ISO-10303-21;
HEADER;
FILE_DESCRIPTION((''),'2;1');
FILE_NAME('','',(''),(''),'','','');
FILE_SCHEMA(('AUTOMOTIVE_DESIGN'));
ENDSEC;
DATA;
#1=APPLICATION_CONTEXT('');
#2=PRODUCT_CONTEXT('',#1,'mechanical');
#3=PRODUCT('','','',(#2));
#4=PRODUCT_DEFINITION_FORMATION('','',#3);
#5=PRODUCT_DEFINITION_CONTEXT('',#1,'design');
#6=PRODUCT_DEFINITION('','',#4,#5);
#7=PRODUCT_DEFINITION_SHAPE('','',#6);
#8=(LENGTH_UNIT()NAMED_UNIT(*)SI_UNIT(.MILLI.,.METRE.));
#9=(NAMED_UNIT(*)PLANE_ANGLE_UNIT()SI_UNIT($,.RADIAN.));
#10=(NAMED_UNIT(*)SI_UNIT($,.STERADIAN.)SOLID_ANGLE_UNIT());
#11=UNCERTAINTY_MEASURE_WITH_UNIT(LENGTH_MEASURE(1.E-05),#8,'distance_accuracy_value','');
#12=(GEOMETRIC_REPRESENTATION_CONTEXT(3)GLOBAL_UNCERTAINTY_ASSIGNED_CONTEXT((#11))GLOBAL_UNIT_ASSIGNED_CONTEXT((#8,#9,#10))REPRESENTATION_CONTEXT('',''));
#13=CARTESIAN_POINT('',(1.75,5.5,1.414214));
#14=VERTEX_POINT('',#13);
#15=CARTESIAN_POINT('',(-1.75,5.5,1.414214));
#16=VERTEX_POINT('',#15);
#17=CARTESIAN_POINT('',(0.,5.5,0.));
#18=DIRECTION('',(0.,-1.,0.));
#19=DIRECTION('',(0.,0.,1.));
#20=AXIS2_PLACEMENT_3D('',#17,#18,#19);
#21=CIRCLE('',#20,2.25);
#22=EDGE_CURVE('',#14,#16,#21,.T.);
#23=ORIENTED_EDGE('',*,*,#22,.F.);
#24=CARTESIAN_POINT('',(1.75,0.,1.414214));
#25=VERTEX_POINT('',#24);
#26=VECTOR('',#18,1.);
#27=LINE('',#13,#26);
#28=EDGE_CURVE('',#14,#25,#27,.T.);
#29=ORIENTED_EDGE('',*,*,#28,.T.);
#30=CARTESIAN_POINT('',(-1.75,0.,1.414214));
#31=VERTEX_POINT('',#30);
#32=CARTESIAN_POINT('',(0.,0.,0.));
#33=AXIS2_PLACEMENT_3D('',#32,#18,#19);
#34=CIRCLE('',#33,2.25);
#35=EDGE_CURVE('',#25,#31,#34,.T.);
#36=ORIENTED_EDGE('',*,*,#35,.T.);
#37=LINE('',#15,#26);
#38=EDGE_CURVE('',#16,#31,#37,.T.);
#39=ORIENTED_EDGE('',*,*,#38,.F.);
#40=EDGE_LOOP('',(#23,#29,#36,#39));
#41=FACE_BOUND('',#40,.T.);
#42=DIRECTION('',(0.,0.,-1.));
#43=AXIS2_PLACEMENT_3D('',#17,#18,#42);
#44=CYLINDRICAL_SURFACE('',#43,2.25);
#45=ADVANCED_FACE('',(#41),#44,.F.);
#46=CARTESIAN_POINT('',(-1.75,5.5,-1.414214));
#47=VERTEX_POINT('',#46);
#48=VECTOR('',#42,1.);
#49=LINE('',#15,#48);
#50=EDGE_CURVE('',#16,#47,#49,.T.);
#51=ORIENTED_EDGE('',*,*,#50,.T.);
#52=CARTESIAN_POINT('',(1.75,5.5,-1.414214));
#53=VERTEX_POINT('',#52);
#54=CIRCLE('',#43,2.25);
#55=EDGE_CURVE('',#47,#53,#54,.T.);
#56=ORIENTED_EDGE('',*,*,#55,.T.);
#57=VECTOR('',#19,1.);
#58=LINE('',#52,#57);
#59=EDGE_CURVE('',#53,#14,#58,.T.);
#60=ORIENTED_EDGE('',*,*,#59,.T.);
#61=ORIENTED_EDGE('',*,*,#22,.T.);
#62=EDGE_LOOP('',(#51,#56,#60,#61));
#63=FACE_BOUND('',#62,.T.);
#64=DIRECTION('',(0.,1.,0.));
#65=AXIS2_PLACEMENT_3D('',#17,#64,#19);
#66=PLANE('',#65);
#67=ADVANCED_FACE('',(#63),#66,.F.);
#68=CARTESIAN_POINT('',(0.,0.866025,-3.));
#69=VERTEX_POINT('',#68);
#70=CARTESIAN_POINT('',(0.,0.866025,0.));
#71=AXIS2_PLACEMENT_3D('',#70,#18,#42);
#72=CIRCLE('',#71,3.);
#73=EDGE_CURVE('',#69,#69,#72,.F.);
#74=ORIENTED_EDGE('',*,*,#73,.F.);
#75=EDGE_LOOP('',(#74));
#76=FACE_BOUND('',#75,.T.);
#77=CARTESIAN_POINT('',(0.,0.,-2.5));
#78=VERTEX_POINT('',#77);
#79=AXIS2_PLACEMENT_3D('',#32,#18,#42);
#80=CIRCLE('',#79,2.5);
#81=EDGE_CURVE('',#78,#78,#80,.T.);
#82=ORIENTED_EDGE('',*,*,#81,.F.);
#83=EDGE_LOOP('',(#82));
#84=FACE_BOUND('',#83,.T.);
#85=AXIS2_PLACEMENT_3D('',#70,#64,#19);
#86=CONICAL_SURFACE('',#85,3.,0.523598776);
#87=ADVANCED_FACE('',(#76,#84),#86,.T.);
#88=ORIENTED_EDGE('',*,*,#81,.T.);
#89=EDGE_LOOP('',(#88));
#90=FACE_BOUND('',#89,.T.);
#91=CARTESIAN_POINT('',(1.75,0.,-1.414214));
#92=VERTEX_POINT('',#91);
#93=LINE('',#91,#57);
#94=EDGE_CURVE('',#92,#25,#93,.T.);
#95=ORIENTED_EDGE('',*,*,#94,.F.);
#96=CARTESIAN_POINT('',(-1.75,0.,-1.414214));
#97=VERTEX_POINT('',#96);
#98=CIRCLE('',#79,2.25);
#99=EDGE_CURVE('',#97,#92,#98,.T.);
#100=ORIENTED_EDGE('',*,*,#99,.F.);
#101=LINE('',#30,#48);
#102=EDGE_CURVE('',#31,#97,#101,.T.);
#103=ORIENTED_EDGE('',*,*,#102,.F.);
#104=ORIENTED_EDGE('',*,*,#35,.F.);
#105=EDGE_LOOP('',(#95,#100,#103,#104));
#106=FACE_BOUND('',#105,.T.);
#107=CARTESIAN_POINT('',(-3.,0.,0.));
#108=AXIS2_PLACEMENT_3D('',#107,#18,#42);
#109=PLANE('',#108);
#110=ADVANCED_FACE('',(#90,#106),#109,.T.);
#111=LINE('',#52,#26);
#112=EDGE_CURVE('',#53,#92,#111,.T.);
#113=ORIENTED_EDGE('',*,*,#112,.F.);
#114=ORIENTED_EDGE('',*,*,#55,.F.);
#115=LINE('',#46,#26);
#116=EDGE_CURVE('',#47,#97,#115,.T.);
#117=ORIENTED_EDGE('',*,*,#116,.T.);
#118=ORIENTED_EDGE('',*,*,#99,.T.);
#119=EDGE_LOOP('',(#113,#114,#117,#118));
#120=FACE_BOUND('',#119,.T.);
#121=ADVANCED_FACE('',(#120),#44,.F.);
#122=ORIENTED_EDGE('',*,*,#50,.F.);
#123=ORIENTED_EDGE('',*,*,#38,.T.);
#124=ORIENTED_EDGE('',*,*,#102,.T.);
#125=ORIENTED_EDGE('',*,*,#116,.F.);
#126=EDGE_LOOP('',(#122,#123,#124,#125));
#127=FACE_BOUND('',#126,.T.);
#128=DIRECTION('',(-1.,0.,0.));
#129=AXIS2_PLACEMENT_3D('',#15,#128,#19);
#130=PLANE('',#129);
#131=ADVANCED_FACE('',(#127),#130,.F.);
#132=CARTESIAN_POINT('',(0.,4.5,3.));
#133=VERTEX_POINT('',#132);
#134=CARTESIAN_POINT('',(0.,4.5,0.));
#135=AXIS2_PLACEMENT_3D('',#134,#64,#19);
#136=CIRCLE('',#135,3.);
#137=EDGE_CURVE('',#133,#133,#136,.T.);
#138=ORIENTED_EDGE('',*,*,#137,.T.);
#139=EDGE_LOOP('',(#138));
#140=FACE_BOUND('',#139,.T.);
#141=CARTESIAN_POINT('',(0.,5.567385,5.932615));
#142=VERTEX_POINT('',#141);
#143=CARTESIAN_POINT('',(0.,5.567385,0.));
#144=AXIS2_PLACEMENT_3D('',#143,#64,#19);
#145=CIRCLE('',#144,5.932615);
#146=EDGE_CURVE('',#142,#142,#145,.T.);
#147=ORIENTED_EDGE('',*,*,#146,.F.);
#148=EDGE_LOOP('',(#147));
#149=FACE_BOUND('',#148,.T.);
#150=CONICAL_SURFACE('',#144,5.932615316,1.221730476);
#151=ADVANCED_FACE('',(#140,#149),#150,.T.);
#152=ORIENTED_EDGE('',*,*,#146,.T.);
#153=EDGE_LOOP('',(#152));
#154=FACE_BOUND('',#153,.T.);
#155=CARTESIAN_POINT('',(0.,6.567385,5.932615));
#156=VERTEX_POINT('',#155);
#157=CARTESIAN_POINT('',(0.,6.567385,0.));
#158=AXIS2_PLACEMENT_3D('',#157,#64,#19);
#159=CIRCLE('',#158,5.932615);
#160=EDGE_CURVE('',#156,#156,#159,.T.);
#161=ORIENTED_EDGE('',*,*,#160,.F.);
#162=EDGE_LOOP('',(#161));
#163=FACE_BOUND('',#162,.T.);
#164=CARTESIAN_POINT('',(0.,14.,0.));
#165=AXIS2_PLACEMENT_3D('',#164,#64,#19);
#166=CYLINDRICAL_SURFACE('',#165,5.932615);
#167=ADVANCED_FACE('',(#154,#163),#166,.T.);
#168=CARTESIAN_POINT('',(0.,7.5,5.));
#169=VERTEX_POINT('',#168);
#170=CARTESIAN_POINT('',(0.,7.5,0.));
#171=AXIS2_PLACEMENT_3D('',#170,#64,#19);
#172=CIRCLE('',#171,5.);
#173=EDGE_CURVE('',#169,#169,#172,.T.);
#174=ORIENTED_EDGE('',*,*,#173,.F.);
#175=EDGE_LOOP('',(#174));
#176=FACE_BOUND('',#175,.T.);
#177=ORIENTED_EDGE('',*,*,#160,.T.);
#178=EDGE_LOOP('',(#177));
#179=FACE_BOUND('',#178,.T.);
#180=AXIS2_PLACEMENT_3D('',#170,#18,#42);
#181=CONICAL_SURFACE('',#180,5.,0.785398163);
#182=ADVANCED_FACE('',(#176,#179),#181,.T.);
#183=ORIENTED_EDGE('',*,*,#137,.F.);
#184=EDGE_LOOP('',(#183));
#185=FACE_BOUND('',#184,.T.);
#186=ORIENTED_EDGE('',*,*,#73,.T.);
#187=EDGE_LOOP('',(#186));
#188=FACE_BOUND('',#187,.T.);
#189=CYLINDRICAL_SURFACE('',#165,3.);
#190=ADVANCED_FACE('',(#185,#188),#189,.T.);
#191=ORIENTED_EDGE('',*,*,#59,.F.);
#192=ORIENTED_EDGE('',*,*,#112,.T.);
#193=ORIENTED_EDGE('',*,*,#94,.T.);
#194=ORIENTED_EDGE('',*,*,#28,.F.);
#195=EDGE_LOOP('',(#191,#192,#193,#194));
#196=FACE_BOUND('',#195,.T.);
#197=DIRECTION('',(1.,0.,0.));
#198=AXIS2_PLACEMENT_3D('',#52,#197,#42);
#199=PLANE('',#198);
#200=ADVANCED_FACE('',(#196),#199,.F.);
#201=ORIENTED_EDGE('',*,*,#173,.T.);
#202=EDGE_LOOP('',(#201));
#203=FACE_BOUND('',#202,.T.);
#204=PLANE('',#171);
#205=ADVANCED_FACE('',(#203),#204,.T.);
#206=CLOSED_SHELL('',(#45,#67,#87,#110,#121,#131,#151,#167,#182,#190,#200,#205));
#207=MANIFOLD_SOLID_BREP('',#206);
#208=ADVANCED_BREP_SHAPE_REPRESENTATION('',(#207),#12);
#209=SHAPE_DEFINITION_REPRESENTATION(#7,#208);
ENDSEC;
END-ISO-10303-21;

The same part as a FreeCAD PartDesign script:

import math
import FreeCAD as App
import Part
import Sketcher

V = App.Vector
Q = App.Units.Quantity


def edges_at(feature, points):
    """Names of the edges that pass closest to the given points."""
    edges = feature.Shape.Edges
    near = lambda p: min(range(len(edges)), key=lambda i: edges[i].distToShape(Part.Vertex(*p))[0])
    return sorted({f"Edge{near(p) + 1}" for p in points})


def add_polygon(sketch, points):
    """Adds a closed chain of lines whose ends are joined by coincident constraints."""
    first, n = sketch.GeometryCount, len(points)
    for a, b in zip(points, points[1:] + points[:1]):
        sketch.addGeometry(Part.LineSegment(App.Vector(*a, 0), App.Vector(*b, 0)), False)
    for i in range(n):
        sketch.addConstraint(Sketcher.Constraint("Coincident", first + i, 2, first + (i + 1) % n, 1))

doc = App.newDocument("Part")
body = doc.addObject("PartDesign::Body", "Body")

# Sketch on XY plane
sketch1 = body.newObject("Sketcher::SketchObject", "Sketch")
sketch1.AttachmentSupport = (doc.getObject("XY_Plane"), [""])
sketch1.MapMode = "FlatFace"
add_polygon(sketch1, [(0, 0), (0, 7.5), (-5, 7.5), (-5.9, 6.6), (-5.9, 5.6), (-3, 4.5), (-3, 0)])  # lines 0-6
sketch1.addConstraint([
    Sketcher.Constraint("Vertical", 0),
    Sketcher.Constraint("Horizontal", 1),
    Sketcher.Constraint("Vertical", 3),
    Sketcher.Constraint("Vertical", 5),
    Sketcher.Constraint("Horizontal", 6),
    Sketcher.Constraint("Coincident", 6, 2, -1, 1),
    Sketcher.Constraint("DistanceX", 1, 2, 1, 1, 5.0),
    Sketcher.Constraint("DistanceX", 6, 1, 6, 2, 3.0),
    Sketcher.Constraint("DistanceY", 3, 2, 3, 1, 1.0),
    Sketcher.Constraint("Angle", 2, Q("-135 deg")),
    Sketcher.Constraint("Angle", 4, Q("-20 deg")),
    Sketcher.Constraint("DistanceY", 0, 1, 0, 2, 7.5),
    Sketcher.Constraint("DistanceY", 5, 2, 5, 1, 4.5),
])
revolution = body.newObject("PartDesign::Revolution", "Revolution")
revolution.Profile = sketch1
revolution.ReferenceAxis = (sketch1, ["V_Axis"])
revolution.Angle = 360

# Sketch on XZ plane
sketch2 = body.newObject("Sketcher::SketchObject", "Sketch001")
sketch2.AttachmentSupport = (doc.getObject("XZ_Plane"), [""])
sketch2.MapMode = "FlatFace"
sketch2.addGeometry([
    Part.LineSegment(V(1.8, -1.4, 0), V(1.8, 1.4, 0)),
    Part.ArcOfCircle(Part.Circle(V(0, 0, 0), V(0, 0, 1), 2.2), math.radians(39), math.radians(141)),
    Part.LineSegment(V(-1.8, 1.4, 0), V(-1.8, -1.4, 0)),
    Part.ArcOfCircle(Part.Circle(V(0, 0, 0), V(0, 0, 1), 2.2), math.radians(-141), math.radians(-39)),
], False)
sketch2.addConstraint([
    Sketcher.Constraint("Coincident", 0, 2, 1, 1),
    Sketcher.Constraint("Coincident", 1, 2, 2, 1),
    Sketcher.Constraint("Coincident", 2, 2, 3, 1),
    Sketcher.Constraint("Coincident", 3, 2, 0, 1),
    Sketcher.Constraint("Vertical", 0),
    Sketcher.Constraint("Vertical", 2),
    Sketcher.Constraint("Coincident", 1, 3, -1, 1),
    Sketcher.Constraint("Coincident", 3, 3, -1, 1),
    Sketcher.Constraint("Equal", 1, 3),
    Sketcher.Constraint("Horizontal", 0, 2, 1, 2),
    Sketcher.Constraint("Radius", 1, 2.25),
    Sketcher.Constraint("DistanceX", 1, 2, 0, 2, 3.5),
])
pocket1 = body.newObject("PartDesign::Pocket", "Pocket")
pocket1.Profile = sketch2
pocket1.Length = 5.5
doc.recompute()

chamfer = body.newObject("PartDesign::Chamfer", "Chamfer")
chamfer.Base = (pocket1, edges_at(pocket1, [(3, 0, 0)]))
chamfer.ChamferType = "Two distances"
chamfer.Size = 0.5
chamfer.Size2 = 0.866025
chamfer.FlipDirection = True

doc.recompute()
